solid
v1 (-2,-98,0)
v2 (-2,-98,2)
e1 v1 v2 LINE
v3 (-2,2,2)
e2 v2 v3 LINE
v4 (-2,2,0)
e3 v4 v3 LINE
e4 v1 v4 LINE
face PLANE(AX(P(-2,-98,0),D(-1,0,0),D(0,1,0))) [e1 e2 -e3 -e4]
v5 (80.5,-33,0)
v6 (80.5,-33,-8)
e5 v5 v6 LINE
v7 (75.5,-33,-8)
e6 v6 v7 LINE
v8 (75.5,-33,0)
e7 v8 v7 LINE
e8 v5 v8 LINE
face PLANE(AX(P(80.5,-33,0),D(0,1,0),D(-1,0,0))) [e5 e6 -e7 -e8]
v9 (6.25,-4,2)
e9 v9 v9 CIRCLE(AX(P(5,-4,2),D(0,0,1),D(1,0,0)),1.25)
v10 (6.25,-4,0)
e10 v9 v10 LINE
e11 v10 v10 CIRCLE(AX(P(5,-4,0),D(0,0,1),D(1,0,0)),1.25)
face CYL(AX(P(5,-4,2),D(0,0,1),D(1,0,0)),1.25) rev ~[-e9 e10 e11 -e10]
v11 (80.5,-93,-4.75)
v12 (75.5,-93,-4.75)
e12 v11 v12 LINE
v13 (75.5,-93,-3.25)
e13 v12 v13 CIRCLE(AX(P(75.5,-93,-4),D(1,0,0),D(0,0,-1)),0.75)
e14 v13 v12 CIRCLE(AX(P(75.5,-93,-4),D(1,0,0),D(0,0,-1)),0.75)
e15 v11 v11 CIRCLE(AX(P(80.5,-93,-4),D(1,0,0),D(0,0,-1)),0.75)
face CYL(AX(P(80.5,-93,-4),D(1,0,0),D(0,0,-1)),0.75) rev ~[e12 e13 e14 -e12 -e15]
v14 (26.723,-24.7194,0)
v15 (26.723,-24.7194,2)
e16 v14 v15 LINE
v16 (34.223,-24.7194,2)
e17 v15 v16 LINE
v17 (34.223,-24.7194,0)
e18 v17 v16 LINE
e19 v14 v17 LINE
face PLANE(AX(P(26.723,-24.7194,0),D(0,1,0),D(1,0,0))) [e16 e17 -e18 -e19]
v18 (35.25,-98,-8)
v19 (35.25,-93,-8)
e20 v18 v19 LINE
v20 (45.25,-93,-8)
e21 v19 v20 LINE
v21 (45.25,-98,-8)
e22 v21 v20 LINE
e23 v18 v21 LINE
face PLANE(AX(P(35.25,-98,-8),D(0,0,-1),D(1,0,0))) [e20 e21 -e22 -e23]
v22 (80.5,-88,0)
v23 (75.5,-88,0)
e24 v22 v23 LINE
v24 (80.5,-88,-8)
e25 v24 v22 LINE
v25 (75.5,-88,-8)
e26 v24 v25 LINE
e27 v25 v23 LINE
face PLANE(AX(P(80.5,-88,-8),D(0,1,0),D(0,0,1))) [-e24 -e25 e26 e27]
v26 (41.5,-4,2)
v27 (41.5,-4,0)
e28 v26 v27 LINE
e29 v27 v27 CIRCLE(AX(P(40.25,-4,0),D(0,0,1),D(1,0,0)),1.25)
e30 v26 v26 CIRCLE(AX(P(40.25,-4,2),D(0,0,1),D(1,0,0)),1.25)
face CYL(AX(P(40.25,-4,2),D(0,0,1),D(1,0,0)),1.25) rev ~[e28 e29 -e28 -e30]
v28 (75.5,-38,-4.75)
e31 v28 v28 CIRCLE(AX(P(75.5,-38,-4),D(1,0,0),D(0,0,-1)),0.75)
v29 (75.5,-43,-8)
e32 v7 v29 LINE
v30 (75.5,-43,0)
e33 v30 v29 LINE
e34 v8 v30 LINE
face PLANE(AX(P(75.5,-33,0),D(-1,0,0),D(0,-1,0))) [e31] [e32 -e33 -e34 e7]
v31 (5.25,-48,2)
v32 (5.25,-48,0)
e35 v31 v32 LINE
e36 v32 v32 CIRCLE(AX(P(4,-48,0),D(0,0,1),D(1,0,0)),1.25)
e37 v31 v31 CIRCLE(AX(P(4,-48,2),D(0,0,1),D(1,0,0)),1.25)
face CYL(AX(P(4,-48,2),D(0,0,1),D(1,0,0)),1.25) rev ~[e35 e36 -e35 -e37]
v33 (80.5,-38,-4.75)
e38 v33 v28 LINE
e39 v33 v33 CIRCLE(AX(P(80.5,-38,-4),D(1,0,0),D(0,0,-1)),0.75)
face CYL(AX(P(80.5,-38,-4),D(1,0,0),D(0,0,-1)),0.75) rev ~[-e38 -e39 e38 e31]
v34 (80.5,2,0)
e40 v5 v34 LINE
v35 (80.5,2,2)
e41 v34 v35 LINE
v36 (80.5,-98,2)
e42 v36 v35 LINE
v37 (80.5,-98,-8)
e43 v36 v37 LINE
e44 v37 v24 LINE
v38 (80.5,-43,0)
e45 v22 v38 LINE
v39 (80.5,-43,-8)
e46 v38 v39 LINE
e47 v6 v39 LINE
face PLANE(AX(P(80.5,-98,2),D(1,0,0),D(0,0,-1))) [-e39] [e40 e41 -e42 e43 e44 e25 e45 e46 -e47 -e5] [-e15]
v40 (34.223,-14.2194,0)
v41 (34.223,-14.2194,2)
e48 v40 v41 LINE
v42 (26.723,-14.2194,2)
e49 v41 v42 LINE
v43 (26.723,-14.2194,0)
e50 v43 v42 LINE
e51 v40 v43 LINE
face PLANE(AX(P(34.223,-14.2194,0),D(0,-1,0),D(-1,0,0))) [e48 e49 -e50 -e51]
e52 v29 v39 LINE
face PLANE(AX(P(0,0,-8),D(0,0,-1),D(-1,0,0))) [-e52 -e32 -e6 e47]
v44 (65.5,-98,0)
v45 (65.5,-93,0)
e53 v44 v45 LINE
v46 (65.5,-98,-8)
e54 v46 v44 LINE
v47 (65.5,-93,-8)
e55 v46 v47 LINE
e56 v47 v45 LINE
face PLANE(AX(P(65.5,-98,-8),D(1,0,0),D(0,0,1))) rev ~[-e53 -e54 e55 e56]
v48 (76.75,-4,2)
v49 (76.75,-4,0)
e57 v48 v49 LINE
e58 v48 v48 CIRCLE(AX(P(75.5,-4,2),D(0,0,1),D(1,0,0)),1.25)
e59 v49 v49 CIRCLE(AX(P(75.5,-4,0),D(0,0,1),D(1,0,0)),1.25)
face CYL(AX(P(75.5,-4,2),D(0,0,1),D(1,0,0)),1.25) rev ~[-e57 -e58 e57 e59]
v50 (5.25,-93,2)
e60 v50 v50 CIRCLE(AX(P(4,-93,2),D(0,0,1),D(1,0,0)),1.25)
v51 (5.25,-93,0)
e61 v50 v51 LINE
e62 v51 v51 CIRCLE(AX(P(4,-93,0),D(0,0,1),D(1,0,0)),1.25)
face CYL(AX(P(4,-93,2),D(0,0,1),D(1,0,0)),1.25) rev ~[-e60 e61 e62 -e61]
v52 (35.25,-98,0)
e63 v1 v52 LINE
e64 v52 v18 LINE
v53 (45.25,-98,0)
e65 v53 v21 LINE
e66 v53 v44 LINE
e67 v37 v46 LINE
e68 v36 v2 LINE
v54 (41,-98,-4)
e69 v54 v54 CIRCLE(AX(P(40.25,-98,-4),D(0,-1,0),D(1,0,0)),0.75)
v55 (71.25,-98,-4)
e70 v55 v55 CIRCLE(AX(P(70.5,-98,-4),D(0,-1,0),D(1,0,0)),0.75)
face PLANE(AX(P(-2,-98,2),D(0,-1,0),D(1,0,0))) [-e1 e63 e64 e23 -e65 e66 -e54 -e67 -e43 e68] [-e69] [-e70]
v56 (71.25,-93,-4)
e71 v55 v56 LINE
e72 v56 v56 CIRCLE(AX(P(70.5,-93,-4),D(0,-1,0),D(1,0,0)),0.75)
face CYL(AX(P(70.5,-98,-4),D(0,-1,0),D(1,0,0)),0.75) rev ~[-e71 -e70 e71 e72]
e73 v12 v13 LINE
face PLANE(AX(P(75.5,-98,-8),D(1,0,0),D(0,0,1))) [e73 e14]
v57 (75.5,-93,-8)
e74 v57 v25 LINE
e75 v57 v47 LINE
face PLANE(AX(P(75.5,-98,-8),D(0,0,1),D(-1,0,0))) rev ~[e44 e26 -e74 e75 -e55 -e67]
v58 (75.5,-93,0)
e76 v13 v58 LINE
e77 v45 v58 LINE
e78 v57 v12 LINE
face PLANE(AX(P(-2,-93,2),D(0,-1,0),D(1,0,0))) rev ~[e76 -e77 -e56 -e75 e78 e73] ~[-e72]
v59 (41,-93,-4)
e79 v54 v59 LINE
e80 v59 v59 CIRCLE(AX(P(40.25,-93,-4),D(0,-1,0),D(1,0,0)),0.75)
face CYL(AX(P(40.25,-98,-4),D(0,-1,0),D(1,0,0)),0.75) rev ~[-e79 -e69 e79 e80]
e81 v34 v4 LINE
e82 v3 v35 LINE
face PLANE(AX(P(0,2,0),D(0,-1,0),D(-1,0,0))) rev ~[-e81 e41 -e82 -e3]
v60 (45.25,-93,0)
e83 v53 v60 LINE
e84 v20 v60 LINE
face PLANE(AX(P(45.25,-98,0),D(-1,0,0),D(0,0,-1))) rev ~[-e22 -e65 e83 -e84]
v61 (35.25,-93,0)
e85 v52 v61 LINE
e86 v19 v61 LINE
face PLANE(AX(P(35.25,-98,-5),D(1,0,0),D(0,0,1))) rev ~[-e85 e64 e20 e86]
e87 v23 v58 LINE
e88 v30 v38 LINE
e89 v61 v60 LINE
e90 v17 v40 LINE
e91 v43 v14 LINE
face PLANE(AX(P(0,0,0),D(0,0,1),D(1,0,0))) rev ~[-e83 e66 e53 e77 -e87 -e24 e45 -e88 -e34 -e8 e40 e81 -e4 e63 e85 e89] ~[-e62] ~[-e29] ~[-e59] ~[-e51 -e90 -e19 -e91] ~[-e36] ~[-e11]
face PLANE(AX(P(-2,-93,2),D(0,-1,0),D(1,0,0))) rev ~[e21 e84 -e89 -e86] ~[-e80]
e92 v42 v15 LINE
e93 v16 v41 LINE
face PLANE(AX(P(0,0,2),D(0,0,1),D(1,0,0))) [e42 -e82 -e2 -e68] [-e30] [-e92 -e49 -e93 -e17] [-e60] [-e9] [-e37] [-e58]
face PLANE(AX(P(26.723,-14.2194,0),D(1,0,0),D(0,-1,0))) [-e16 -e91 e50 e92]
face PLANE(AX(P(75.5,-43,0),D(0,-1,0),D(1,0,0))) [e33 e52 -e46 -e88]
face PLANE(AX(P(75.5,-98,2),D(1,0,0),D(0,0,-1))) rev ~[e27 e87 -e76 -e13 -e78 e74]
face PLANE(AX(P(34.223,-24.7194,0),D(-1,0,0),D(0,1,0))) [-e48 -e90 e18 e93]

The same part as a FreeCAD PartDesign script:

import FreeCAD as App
import Part
import Sketcher

V = App.Vector

doc = App.newDocument("Part")
body = doc.addObject("PartDesign::Body", "Body")

sketch1 = body.newObject("Sketcher::SketchObject", "Sketch")
sketch1.AttachmentSupport = (doc.getObject("XY_Plane"), [""])
sketch1.MapMode = "FlatFace"
sketch1.addGeometry([
    Part.LineSegment(V(-2, 2, 0), V(-2, -98, 0)),
    Part.LineSegment(V(-2, -98, 0), V(80.5, -98, 0)),
    Part.LineSegment(V(80.5, -98, 0), V(80.5, 2, 0)),
    Part.LineSegment(V(80.5, 2, 0), V(-2, 2, 0)),
    Part.Circle(V(4, -93, 0), V(0, 0, 1), 0.8),
    Part.Circle(V(4, -48, 0), V(0, 0, 1), 0.8),
    Part.Circle(V(5, -4, 0), V(0, 0, 1), 0.8),
    Part.LineSegment(V(34.2, -14.2, 0), V(34.2, -24.7, 0)),
    Part.LineSegment(V(34.2, -24.7, 0), V(26.7, -24.7, 0)),
    Part.LineSegment(V(26.7, -24.7, 0), V(26.7, -14.2, 0)),
    Part.LineSegment(V(26.7, -14.2, 0), V(34.2, -14.2, 0)),
    Part.Circle(V(40.2, -4, 0), V(0, 0, 1), 0.8),
    Part.Circle(V(75.5, -4, 0), V(0, 0, 1), 0.8),
], False)
sketch1.addConstraint([
    Sketcher.Constraint("Coincident", 0, 2, 1, 1),
    Sketcher.Constraint("Coincident", 1, 2, 2, 1),
    Sketcher.Constraint("Coincident", 2, 2, 3, 1),
    Sketcher.Constraint("Coincident", 3, 2, 0, 1),
    Sketcher.Constraint("Coincident", 7, 2, 8, 1),
    Sketcher.Constraint("Coincident", 8, 2, 9, 1),
    Sketcher.Constraint("Coincident", 9, 2, 10, 1),
    Sketcher.Constraint("Coincident", 10, 2, 7, 1),
    Sketcher.Constraint("Vertical", 0),
    Sketcher.Constraint("Horizontal", 1),
    Sketcher.Constraint("Vertical", 2),
    Sketcher.Constraint("Horizontal", 3),
    Sketcher.Constraint("Vertical", 7),
    Sketcher.Constraint("Horizontal", 8),
    Sketcher.Constraint("Vertical", 9),
    Sketcher.Constraint("Horizontal", 10),
    Sketcher.Constraint("Equal", 4, 5),
    Sketcher.Constraint("Equal", 5, 6),
    Sketcher.Constraint("Equal", 6, 11),
    Sketcher.Constraint("Equal", 11, 12),
    Sketcher.Constraint("Horizontal", 6, 3, 11, 3),
    Sketcher.Constraint("Horizontal", 11, 3, 12, 3),
    Sketcher.Constraint("Vertical", 4, 3, 5, 3),
    Sketcher.Constraint("Diameter", 4, 1.5),
    Sketcher.Constraint("DistanceY", 0, 2, 0, 1, 100.0),
    Sketcher.Constraint("DistanceX", 1, 1, 1, 2, 82.5),
    Sketcher.Constraint("DistanceX", 8, 2, 8, 1, 7.5),
    Sketcher.Constraint("DistanceY", 7, 2, 7, 1, 10.5),
    Sketcher.Constraint("DistanceX", -1, 1, 4, 3, 4.0),
    Sketcher.Constraint("DistanceY", 4, 3, -1, 1, 93.0),
    Sketcher.Constraint("DistanceY", 5, 3, -1, 1, 48.0),
    Sketcher.Constraint("DistanceX", -1, 1, 6, 3, 5.0),
    Sketcher.Constraint("DistanceY", 6, 3, -1, 1, 4.0),
    Sketcher.Constraint("DistanceX", 0, 2, -1, 1, 2.0),
    Sketcher.Constraint("DistanceY", 0, 2, -1, 1, 98.0),
    Sketcher.Constraint("DistanceX", 12, 3, 1, 2, 5.0),
    Sketcher.Constraint("DistanceX", -1, 1, 11, 3, 40.25),
    Sketcher.Constraint("DistanceX", -1, 1, 7, 2, 34.223),
    Sketcher.Constraint("DistanceY", 7, 2, -1, 1, 24.7194),
])
pad1 = body.newObject("PartDesign::Pad", "Pad")
pad1.Profile = sketch1
pad1.Length = 2

sketch2 = body.newObject("Sketcher::SketchObject", "Sketch001")
sketch2.AttachmentSupport = (doc.getObject("YZ_Plane"), [""])
sketch2.MapMode = "FlatFace"
sketch2.AttachmentOffset = App.Placement(V(0, 0, 80.5), App.Rotation())
sketch2.addGeometry([
    Part.LineSegment(V(-43, 0, 0), V(-53, 0, 0)),
    Part.LineSegment(V(-53, 0, 0), V(-53, -8, 0)),
    Part.LineSegment(V(-53, -8, 0), V(-43, -8, 0)),
    Part.LineSegment(V(-43, -8, 0), V(-43, 0, 0)),
    Part.Circle(V(-48, -4, 0), V(0, 0, 1), 0.8),
], False)
sketch2.addConstraint([
    Sketcher.Constraint("Coincident", 0, 2, 1, 1),
    Sketcher.Constraint("Coincident", 1, 2, 2, 1),
    Sketcher.Constraint("Coincident", 2, 2, 3, 1),
    Sketcher.Constraint("Coincident", 3, 2, 0, 1),
    Sketcher.Constraint("Horizontal", 0),
    Sketcher.Constraint("Vertical", 1),
    Sketcher.Constraint("Horizontal", 2),
    Sketcher.Constraint("Vertical", 3),
    Sketcher.Constraint("PointOnObject", 0, 2, -1),
    Sketcher.Constraint("Diameter", 4, 1.5),
    Sketcher.Constraint("DistanceX", 0, 2, 0, 1, 10.0),
    Sketcher.Constraint("DistanceY", 1, 2, 1, 1, 8.0),
    Sketcher.Constraint("DistanceX", 4, 3, -1, 1, 48.0),
    Sketcher.Constraint("DistanceY", 4, 3, -1, 1, 4.0),
    Sketcher.Constraint("DistanceX", 0, 2, -1, 1, 53.0),
])
pad2 = body.newObject("PartDesign::Pad", "Pad001")
pad2.Profile = sketch2
pad2.Length = 5
pad2.Reversed = True

sketch3 = body.newObject("Sketcher::SketchObject", "Sketch002")
sketch3.AttachmentSupport = (doc.getObject("YZ_Plane"), [""])
sketch3.MapMode = "FlatFace"
sketch3.AttachmentOffset = App.Placement(V(0, 0, 80.5), App.Rotation())
sketch3.addGeometry([
    Part.LineSegment(V(-88, -8, 0), V(-88, 0, 0)),
    Part.LineSegment(V(-88, 0, 0), V(-98, 0, 0)),
    Part.LineSegment(V(-98, 0, 0), V(-98, -8, 0)),
    Part.LineSegment(V(-98, -8, 0), V(-88, -8, 0)),
    Part.Circle(V(-93, -4, 0), V(0, 0, 1), 0.8),
], False)
sketch3.addConstraint([
    Sketcher.Constraint("Coincident", 0, 2, 1, 1),
    Sketcher.Constraint("Coincident", 1, 2, 2, 1),
    Sketcher.Constraint("Coincident", 2, 2, 3, 1),
    Sketcher.Constraint("Coincident", 3, 2, 0, 1),
    Sketcher.Constraint("Vertical", 0),
    Sketcher.Constraint("Horizontal", 1),
    Sketcher.Constraint("Vertical", 2),
    Sketcher.Constraint("Horizontal", 3),
    Sketcher.Constraint("PointOnObject", 0, 2, -1),
    Sketcher.Constraint("Diameter", 4, 1.5),
    Sketcher.Constraint("DistanceX", 1, 2, 1, 1, 10.0),
    Sketcher.Constraint("DistanceY", 0, 1, 0, 2, 8.0),
    Sketcher.Constraint("DistanceX", 4, 3, -1, 1, 93.0),
    Sketcher.Constraint("DistanceY", 4, 3, -1, 1, 4.0),
    Sketcher.Constraint("DistanceX", 0, 2, -1, 1, 88.0),
])
pad3 = body.newObject("PartDesign::Pad", "Pad002")
pad3.Profile = sketch3
pad3.Length = 5
pad3.Reversed = True

sketch4 = body.newObject("Sketcher::SketchObject", "Sketch003")
sketch4.AttachmentSupport = (doc.getObject("XZ_Plane"), [""])
sketch4.MapMode = "FlatFace"
sketch4.AttachmentOffset = App.Placement(V(0, 0, 98), App.Rotation())
sketch4.addGeometry([
    Part.LineSegment(V(65.5, -8, 0), V(75.5, -8, 0)),
    Part.LineSegment(V(75.5, -8, 0), V(75.5, 0, 0)),
    Part.LineSegment(V(75.5, 0, 0), V(65.5, 0, 0)),
    Part.LineSegment(V(65.5, 0, 0), V(65.5, -8, 0)),
    Part.Circle(V(70.5, -4, 0), V(0, 0, 1), 0.8),
], False)
sketch4.addConstraint([
    Sketcher.Constraint("Coincident", 0, 2, 1, 1),
    Sketcher.Constraint("Coincident", 1, 2, 2, 1),
    Sketcher.Constraint("Coincident", 2, 2, 3, 1),
    Sketcher.Constraint("Coincident", 3, 2, 0, 1),
    Sketcher.Constraint("Horizontal", 0),
    Sketcher.Constraint("Vertical", 1),
    Sketcher.Constraint("Horizontal", 2),
    Sketcher.Constraint("Vertical", 3),
    Sketcher.Constraint("PointOnObject", 1, 2, -1),
    Sketcher.Constraint("Diameter", 4, 1.5),
    Sketcher.Constraint("DistanceX", 0, 1, 0, 2, 10.0),
    Sketcher.Constraint("DistanceY", 1, 1, 1, 2, 8.0),
    Sketcher.Constraint("DistanceY", 4, 3, -1, 1, 4.0),
    Sketcher.Constraint("DistanceX", 4, 3, 0, 2, 5.0),
    Sketcher.Constraint("DistanceX", -1, 1, 4, 3, 70.5),
])
pad4 = body.newObject("PartDesign::Pad", "Pad003")
pad4.Profile = sketch4
pad4.Length = 5
pad4.Reversed = True

sketch5 = body.newObject("Sketcher::SketchObject", "Sketch004")
sketch5.AttachmentSupport = (doc.getObject("XZ_Plane"), [""])
sketch5.MapMode = "FlatFace"
sketch5.AttachmentOffset = App.Placement(V(0, 0, 98), App.Rotation())
sketch5.addGeometry([
    Part.LineSegment(V(25.5, -8, 0), V(35.5, -8, 0)),
    Part.LineSegment(V(35.5, -8, 0), V(35.5, 0, 0)),
    Part.LineSegment(V(35.5, 0, 0), V(25.5, 0, 0)),
    Part.LineSegment(V(25.5, 0, 0), V(25.5, -8, 0)),
    Part.Circle(V(30.5, -4, 0), V(0, 0, 1), 0.8),
], False)
sketch5.addConstraint([
    Sketcher.Constraint("Coincident", 0, 2, 1, 1),
    Sketcher.Constraint("Coincident", 1, 2, 2, 1),
    Sketcher.Constraint("Coincident", 2, 2, 3, 1),
    Sketcher.Constraint("Coincident", 3, 2, 0, 1),
    Sketcher.Constraint("Horizontal", 0),
    Sketcher.Constraint("Vertical", 1),
    Sketcher.Constraint("Horizontal", 2),
    Sketcher.Constraint("Vertical", 3),
    Sketcher.Constraint("PointOnObject", 1, 2, -1),
    Sketcher.Constraint("Diameter", 4, 1.5),
    Sketcher.Constraint("DistanceX", 0, 1, 0, 2, 10.0),
    Sketcher.Constraint("DistanceY", 1, 1, 1, 2, 8.0),
    Sketcher.Constraint("DistanceY", 4, 3, -1, 1, 4.0),
    Sketcher.Constraint("DistanceX", 4, 3, 0, 2, 5.0),
    Sketcher.Constraint("DistanceX", -1, 1, 4, 3, 30.473),
])
pad5 = body.newObject("PartDesign::Pad", "Pad004")
pad5.Profile = sketch5
pad5.Length = 5
pad5.Reversed = True

sketch6 = body.newObject("Sketcher::SketchObject", "Sketch005")
sketch6.AttachmentSupport = (doc.getObject("XZ_Plane"), [""])
sketch6.MapMode = "FlatFace"
sketch6.AttachmentOffset = App.Placement(V(0, 0, 98), App.Rotation())
sketch6.addGeometry([
    Part.LineSegment(V(25, -8, 0), V(35, -8, 0)),
    Part.LineSegment(V(35, -8, 0), V(35, 0, 0)),
    Part.LineSegment(V(35, 0, 0), V(25, 0, 0)),
    Part.LineSegment(V(25, 0, 0), V(25, -8, 0)),
], False)
sketch6.addConstraint([
    Sketcher.Constraint("Coincident", 0, 2, 1, 1),
    Sketcher.Constraint("Coincident", 1, 2, 2, 1),
    Sketcher.Constraint("Coincident", 2, 2, 3, 1),
    Sketcher.Constraint("Coincident", 3, 2, 0, 1),
    Sketcher.Constraint("Horizontal", 0),
    Sketcher.Constraint("Vertical", 1),
    Sketcher.Constraint("Horizontal", 2),
    Sketcher.Constraint("Vertical", 3),
    Sketcher.Constraint("PointOnObject", 1, 2, -1),
    Sketcher.Constraint("DistanceX", 0, 1, 0, 2, 10.0),
    Sketcher.Constraint("DistanceY", 1, 1, 1, 2, 8.0),
    Sketcher.Constraint("DistanceX", -1, 1, 0, 2, 35.473),
])
pocket1 = body.newObject("PartDesign::Pocket", "Pocket")
pocket1.Profile = sketch6
pocket1.Length = 5

sketch7 = body.newObject("Sketcher::SketchObject", "Sketch006")
sketch7.AttachmentSupport = (doc.getObject("XZ_Plane"), [""])
sketch7.MapMode = "FlatFace"
sketch7.AttachmentOffset = App.Placement(V(0, 0, 98), App.Rotation())
sketch7.addGeometry([
    Part.LineSegment(V(45.2, 0, 0), V(35.2, 0, 0)),
    Part.LineSegment(V(35.2, 0, 0), V(35.2, -8, 0)),
    Part.LineSegment(V(35.2, -8, 0), V(45.2, -8, 0)),
    Part.LineSegment(V(45.2, -8, 0), V(45.2, 0, 0)),
    Part.Circle(V(40.2, -4, 0), V(0, 0, 1), 0.8),
], False)
sketch7.addConstraint([
    Sketcher.Constraint("Coincident", 0, 2, 1, 1),
    Sketcher.Constraint("Coincident", 1, 2, 2, 1),
    Sketcher.Constraint("Coincident", 2, 2, 3, 1),
    Sketcher.Constraint("Coincident", 3, 2, 0, 1),
    Sketcher.Constraint("Horizontal", 0),
    Sketcher.Constraint("Vertical", 1),
    Sketcher.Constraint("Horizontal", 2),
    Sketcher.Constraint("Vertical", 3),
    Sketcher.Constraint("PointOnObject", 0, 2, -1),
    Sketcher.Constraint("Diameter", 4, 1.5),
    Sketcher.Constraint("DistanceX", 0, 2, 0, 1, 10.0),
    Sketcher.Constraint("DistanceY", 1, 2, 1, 1, 8.0),
    Sketcher.Constraint("DistanceY", 4, 3, -1, 1, 4.0),
    Sketcher.Constraint("DistanceX", 0, 2, 4, 3, 5.0),
    Sketcher.Constraint("DistanceX", -1, 1, 4, 3, 40.25),
])
pad6 = body.newObject("PartDesign::Pad", "Pad005")
pad6.Profile = sketch7
pad6.Length = 5
pad6.Reversed = True

sketch8 = body.newObject("Sketcher::SketchObject", "Sketch007")
sketch8.AttachmentSupport = (doc.getObject("XY_Plane"), [""])
sketch8.MapMode = "FlatFace"
sketch8.AttachmentOffset = App.Placement(V(0, 0, -8), App.Rotation())
sketch8.addGeometry([
    Part.LineSegment(V(76, -53, 0), V(76, -43, 0)),
    Part.LineSegment(V(76, -43, 0), V(80, -43, 0)),
    Part.LineSegment(V(80, -43, 0), V(80, -53, 0)),
    Part.LineSegment(V(80, -53, 0), V(76, -53, 0)),
], False)
sketch8.addConstraint([
    Sketcher.Constraint("Coincident", 0, 2, 1, 1),
    Sketcher.Constraint("Coincident", 1, 2, 2, 1),
    Sketcher.Constraint("Coincident", 2, 2, 3, 1),
    Sketcher.Constraint("Coincident", 3, 2, 0, 1),
    Sketcher.Constraint("Vertical", 0),
    Sketcher.Constraint("Horizontal", 1),
    Sketcher.Constraint("Vertical", 2),
    Sketcher.Constraint("Horizontal", 3),
    Sketcher.Constraint("DistanceY", 0, 1, 0, 2, 10.0),
    Sketcher.Constraint("DistanceX", 1, 1, 1, 2, 5.0),
    Sketcher.Constraint("DistanceY", 0, 2, -1, 1, 43.0),
    Sketcher.Constraint("DistanceX", -1, 1, 0, 2, 75.5),
])
pocket2 = body.newObject("PartDesign::Pocket", "Pocket001")
pocket2.Profile = sketch8
pocket2.Length = 8
pocket2.Reversed = True

sketch9 = body.newObject("Sketcher::SketchObject", "Sketch008")
sketch9.AttachmentSupport = (doc.getObject("XY_Plane"), [""])
sketch9.MapMode = "FlatFace"
sketch9.addGeometry([
    Part.LineSegment(V(76, -33, 0), V(80, -33, 0)),
    Part.LineSegment(V(80, -33, 0), V(80, -43, 0)),
    Part.LineSegment(V(80, -43, 0), V(76, -43, 0)),
    Part.LineSegment(V(76, -43, 0), V(76, -33, 0)),
], False)
sketch9.addConstraint([
    Sketcher.Constraint("Coincident", 0, 2, 1, 1),
    Sketcher.Constraint("Coincident", 1, 2, 2, 1),
    Sketcher.Constraint("Coincident", 2, 2, 3, 1),
    Sketcher.Constraint("Coincident", 3, 2, 0, 1),
    Sketcher.Constraint("Horizontal", 0),
    Sketcher.Constraint("Vertical", 1),
    Sketcher.Constraint("Horizontal", 2),
    Sketcher.Constraint("Vertical", 3),
    Sketcher.Constraint("DistanceX", 0, 1, 0, 2, 5.0),
    Sketcher.Constraint("DistanceY", 1, 2, 1, 1, 10.0),
    Sketcher.Constraint("DistanceY", 0, 2, -1, 1, 33.0),
    Sketcher.Constraint("DistanceX", -1, 1, 0, 2, 80.5),
])
pad7 = body.newObject("PartDesign::Pad", "Pad006")
pad7.Profile = sketch9
pad7.Length = 8
pad7.Reversed = True

sketch10 = body.newObject("Sketcher::SketchObject", "Sketch009")
sketch10.AttachmentSupport = (doc.getObject("YZ_Plane"), [""])
sketch10.MapMode = "FlatFace"
sketch10.AttachmentOffset = App.Placement(V(0, 0, 80.5), App.Rotation())
sketch10.addGeometry(Part.Circle(V(-38, -4, 0), V(0, 0, 1), 0.8), False)
sketch10.addConstraint([
    Sketcher.Constraint("Diameter", 0, 1.5),
    Sketcher.Constraint("DistanceX", 0, 3, -1, 1, 38.0),
    Sketcher.Constraint("DistanceY", 0, 3, -1, 1, 4.0),
])
pocket3 = body.newObject("PartDesign::Pocket", "Pocket002")
pocket3.Profile = sketch10
pocket3.Length = 5

sketch11 = body.newObject("Sketcher::SketchObject", "Sketch010")
sketch11.AttachmentSupport = (doc.getObject("XY_Plane"), [""])
sketch11.MapMode = "FlatFace"
sketch11.AttachmentOffset = App.Placement(V(0, 0, 2), App.Rotation())
sketch11.addGeometry([
    Part.Circle(V(5, -4, 0), V(0, 0, 1), 1.2),
    Part.Circle(V(5, -4, 0), V(0, 0, 1), 0.8),
    Part.Circle(V(40.2, -4, 0), V(0, 0, 1), 1.2),
    Part.Circle(V(40.2, -4, 0), V(0, 0, 1), 0.8),
    Part.Circle(V(75.5, -4, 0), V(0, 0, 1), 1.2),
    Part.Circle(V(75.5, -4, 0), V(0, 0, 1), 0.8),
    Part.Circle(V(4, -48, 0), V(0, 0, 1), 1.2),
    Part.Circle(V(4, -48, 0), V(0, 0, 1), 0.8),
    Part.Circle(V(4, -93, 0), V(0, 0, 1), 1.2),
    Part.Circle(V(4, -93, 0), V(0, 0, 1), 0.8),
], False)
sketch11.addConstraint([
    Sketcher.Constraint("Coincident", 1, 3, 0, 3),
    Sketcher.Constraint("Coincident", 3, 3, 2, 3),
    Sketcher.Constraint("Coincident", 5, 3, 4, 3),
    Sketcher.Constraint("Coincident", 7, 3, 6, 3),
    Sketcher.Constraint("Coincident", 9, 3, 8, 3),
    Sketcher.Constraint("Equal", 0, 2),
    Sketcher.Constraint("Equal", 1, 3),
    Sketcher.Constraint("Equal", 2, 4),
    Sketcher.Constraint("Equal", 3, 5),
    Sketcher.Constraint("Equal", 4, 6),
    Sketcher.Constraint("Equal", 5, 7),
    Sketcher.Constraint("Equal", 6, 8),
    Sketcher.Constraint("Equal", 7, 9),
    Sketcher.Constraint("Horizontal", 1, 3, 2, 3),
    Sketcher.Constraint("Horizontal", 3, 3, 4, 3),
    Sketcher.Constraint("Vertical", 7, 3, 8, 3),
    Sketcher.Constraint("Diameter", 0, 2.5),
    Sketcher.Constraint("Diameter", 1, 1.5),
    Sketcher.Constraint("DistanceX", -1, 1, 0, 3, 5.0),
    Sketcher.Constraint("DistanceY", 0, 3, -1, 1, 4.0),
    Sketcher.Constraint("DistanceX", -1, 1, 6, 3, 4.0),
    Sketcher.Constraint("DistanceY", 6, 3, -1, 1, 48.0),
    Sketcher.Constraint("DistanceY", 8, 3, -1, 1, 93.0),
    Sketcher.Constraint("DistanceX", -1, 1, 4, 3, 75.5),
    Sketcher.Constraint("DistanceX", -1, 1, 2, 3, 40.25),
])
pocket4 = body.newObject("PartDesign::Pocket", "Pocket003")
pocket4.Profile = sketch11
pocket4.Length = 2

doc.recompute()
